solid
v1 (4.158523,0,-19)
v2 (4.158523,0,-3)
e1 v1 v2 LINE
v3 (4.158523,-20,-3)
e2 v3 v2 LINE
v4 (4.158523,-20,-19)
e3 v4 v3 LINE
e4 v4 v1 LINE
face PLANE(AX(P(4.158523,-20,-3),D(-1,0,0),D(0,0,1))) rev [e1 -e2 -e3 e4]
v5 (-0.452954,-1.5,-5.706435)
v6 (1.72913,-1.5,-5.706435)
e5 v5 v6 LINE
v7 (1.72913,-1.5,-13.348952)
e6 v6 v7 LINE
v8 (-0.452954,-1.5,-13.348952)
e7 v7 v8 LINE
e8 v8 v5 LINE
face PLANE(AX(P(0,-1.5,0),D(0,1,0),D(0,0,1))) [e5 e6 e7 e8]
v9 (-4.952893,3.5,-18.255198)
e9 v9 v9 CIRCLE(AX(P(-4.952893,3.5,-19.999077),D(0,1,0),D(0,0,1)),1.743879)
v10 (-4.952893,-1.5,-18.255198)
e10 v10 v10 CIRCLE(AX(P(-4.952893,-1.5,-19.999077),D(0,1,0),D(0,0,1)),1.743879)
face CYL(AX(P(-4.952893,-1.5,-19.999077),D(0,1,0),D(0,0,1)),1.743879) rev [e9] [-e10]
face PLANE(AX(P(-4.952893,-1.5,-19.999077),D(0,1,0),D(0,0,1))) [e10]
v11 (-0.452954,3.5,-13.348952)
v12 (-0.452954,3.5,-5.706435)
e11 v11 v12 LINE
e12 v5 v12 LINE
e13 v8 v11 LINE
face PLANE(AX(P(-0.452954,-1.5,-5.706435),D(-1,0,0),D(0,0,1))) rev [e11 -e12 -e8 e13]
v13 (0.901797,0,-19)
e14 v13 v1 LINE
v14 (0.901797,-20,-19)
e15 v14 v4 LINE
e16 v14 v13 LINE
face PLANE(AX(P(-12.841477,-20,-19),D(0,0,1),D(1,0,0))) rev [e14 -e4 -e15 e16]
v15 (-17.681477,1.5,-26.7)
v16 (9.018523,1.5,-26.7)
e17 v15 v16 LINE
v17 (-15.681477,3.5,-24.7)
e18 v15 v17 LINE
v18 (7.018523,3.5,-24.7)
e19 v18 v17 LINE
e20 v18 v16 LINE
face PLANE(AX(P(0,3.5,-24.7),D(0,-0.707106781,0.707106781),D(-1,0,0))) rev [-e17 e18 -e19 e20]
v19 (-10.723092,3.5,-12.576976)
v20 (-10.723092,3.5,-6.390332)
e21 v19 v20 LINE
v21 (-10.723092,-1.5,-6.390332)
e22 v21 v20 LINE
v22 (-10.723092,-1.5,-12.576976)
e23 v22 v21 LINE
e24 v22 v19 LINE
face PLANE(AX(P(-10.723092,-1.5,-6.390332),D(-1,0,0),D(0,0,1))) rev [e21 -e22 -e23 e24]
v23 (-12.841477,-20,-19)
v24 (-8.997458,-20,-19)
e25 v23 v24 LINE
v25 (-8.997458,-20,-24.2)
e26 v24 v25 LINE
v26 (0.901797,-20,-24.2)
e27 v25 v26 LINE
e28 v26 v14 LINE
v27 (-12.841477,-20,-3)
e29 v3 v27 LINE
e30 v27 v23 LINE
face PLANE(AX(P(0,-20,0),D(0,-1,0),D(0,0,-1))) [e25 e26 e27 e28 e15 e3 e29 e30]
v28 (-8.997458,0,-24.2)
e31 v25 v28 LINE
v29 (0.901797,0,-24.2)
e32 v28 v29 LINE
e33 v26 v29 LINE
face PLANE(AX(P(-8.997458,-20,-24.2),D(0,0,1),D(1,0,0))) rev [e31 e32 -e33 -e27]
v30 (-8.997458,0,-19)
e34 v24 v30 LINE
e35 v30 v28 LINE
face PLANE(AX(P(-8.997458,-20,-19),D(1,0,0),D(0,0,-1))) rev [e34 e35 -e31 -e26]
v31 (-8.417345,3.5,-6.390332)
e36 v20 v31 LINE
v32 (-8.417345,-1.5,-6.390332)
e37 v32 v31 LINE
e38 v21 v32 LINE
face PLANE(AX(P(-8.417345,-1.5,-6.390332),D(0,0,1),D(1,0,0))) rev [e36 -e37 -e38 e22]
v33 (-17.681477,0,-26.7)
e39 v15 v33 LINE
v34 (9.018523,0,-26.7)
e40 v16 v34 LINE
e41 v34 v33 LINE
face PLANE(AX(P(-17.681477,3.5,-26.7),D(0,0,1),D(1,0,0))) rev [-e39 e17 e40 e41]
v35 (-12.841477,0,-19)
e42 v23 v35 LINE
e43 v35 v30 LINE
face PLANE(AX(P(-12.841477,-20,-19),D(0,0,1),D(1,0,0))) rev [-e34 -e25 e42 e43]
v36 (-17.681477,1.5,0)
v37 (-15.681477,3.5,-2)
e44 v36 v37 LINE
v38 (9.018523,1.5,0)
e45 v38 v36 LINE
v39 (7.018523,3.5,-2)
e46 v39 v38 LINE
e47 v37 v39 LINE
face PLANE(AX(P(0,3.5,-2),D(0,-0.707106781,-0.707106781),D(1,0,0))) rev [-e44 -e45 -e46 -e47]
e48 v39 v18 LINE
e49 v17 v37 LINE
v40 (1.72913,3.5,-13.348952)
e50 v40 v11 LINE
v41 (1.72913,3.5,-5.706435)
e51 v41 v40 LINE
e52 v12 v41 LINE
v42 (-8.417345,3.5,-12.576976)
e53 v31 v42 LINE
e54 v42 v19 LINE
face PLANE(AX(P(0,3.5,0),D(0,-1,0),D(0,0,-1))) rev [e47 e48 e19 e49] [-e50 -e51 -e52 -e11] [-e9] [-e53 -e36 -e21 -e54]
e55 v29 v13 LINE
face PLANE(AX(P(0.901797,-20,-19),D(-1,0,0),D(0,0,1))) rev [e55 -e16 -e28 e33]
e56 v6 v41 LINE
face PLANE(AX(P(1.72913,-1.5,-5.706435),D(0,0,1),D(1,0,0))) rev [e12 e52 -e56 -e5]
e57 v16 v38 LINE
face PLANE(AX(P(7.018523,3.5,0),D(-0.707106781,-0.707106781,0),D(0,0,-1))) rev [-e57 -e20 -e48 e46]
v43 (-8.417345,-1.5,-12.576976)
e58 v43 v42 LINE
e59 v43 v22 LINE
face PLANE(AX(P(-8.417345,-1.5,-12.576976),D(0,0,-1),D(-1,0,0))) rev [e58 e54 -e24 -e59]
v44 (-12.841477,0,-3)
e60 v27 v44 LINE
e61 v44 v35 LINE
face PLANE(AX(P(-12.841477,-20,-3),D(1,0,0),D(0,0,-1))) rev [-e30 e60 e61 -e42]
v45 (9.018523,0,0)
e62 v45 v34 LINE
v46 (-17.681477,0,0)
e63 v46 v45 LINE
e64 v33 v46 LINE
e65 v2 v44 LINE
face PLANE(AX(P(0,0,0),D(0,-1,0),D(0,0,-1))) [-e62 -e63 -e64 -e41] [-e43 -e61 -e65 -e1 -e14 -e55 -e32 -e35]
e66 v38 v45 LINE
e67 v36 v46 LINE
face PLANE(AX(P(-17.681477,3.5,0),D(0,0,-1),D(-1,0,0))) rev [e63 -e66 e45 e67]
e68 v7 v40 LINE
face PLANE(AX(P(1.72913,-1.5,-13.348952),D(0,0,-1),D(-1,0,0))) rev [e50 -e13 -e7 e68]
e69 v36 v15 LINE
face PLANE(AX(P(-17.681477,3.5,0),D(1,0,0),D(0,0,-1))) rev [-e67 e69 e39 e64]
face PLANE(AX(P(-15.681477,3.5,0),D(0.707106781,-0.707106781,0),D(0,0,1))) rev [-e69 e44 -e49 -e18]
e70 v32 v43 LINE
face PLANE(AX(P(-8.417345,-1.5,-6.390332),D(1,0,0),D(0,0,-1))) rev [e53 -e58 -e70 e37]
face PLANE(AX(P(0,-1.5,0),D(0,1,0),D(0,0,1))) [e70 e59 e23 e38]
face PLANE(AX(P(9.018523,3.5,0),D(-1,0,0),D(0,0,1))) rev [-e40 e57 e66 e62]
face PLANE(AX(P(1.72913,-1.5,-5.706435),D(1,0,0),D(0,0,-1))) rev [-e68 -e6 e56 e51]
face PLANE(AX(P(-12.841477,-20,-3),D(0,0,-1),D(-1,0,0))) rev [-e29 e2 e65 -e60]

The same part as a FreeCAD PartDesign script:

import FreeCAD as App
import Part
import Sketcher
from FreeCAD import Vector


def edges_at(feature, points):
    """Names of the edges that pass closest to the given points."""
    edges = feature.Shape.Edges
    near = lambda p: min(range(len(edges)), key=lambda i: edges[i].distToShape(Part.Vertex(*p))[0])
    return sorted({f"Edge{near(p) + 1}" for p in points})


def add_polygon(sketch, points):
    """Adds a closed chain of lines whose ends are joined by coincident constraints."""
    first, n = sketch.GeometryCount, len(points)
    for a, b in zip(points, points[1:] + points[:1]):
        sketch.addGeometry(Part.LineSegment(App.Vector(*a, 0), App.Vector(*b, 0)), False)
    for i in range(n):
        sketch.addConstraint(Sketcher.Constraint("Coincident", first + i, 2, first + (i + 1) % n, 1))

doc = App.newDocument("Part")
body = doc.addObject("PartDesign::Body", "Body")

# Sketch on XZ plane
sketch1 = body.newObject("Sketcher::SketchObject", "Sketch")
sketch1.AttachmentSupport = (doc.getObject("XZ_Plane"), [""])
sketch1.MapMode = "FlatFace"
add_polygon(sketch1, [(-18, -27), (-18, 0), (9, 0), (9, -27)])  # lines 0-3
sketch1.addConstraint([
    Sketcher.Constraint("Vertical", 0),
    Sketcher.Constraint("Horizontal", 1),
    Sketcher.Constraint("Vertical", 2),
    Sketcher.Constraint("Horizontal", 3),
    Sketcher.Constraint("PointOnObject", 0, 2, -1),
    Sketcher.Constraint("Equal", 3, 0),
    Sketcher.Constraint("DistanceX", 1, 1, 1, 2, 26.7),
    Sketcher.Constraint("DistanceX", 0, 2, -1, 1, 17.681477),
])
pad1 = body.newObject("PartDesign::Pad", "Pad")
pad1.Profile = sketch1
pad1.Length = 3.5
pad1.Reversed = True
doc.recompute()

chamfer = body.newObject("PartDesign::Chamfer", "Chamfer")
chamfer.Base = (pad1, edges_at(pad1, [
    (9.019, 3.5, -13.35),
    (-4.331, 3.5, -26.7),
    (-17.681, 3.5, -13.35),
    (-4.331, 3.5, 0),
]))
chamfer.Size = 2

# Sketch on XZ plane
sketch2 = body.newObject("Sketcher::SketchObject", "Sketch001")
sketch2.AttachmentSupport = (doc.getObject("XZ_Plane"), [""])
sketch2.MapMode = "FlatFace"
add_polygon(sketch2, [(-13, -3), (-13, -19), (4, -19), (4, -3)])  # lines 0-3
sketch2.addConstraint([
    Sketcher.Constraint("Vertical", 0),
    Sketcher.Constraint("Horizontal", 1),
    Sketcher.Constraint("Vertical", 2),
    Sketcher.Constraint("Horizontal", 3),
    Sketcher.Constraint("DistanceX", 1, 1, 1, 2, 17.0),
    Sketcher.Constraint("DistanceY", 0, 2, 0, 1, 16.0),
    Sketcher.Constraint("DistanceY", 0, 2, -1, 1, 19.0),
    Sketcher.Constraint("DistanceX", 0, 2, -1, 1, 12.841477),
])
pad2 = body.newObject("PartDesign::Pad", "Pad001")
pad2.Profile = sketch2
pad2.Length = 20

# Sketch on XZ plane
sketch3 = body.newObject("Sketcher::SketchObject", "Sketch002")
sketch3.AttachmentSupport = (doc.getObject("XZ_Plane"), [""])
sketch3.MapMode = "FlatFace"
add_polygon(sketch3, [(-9, -19), (-9, -24), (1, -24), (1, -19)])  # lines 0-3
sketch3.addConstraint([
    Sketcher.Constraint("Vertical", 0),
    Sketcher.Constraint("Horizontal", 1),
    Sketcher.Constraint("Vertical", 2),
    Sketcher.Constraint("Horizontal", 3),
    Sketcher.Constraint("DistanceY", 0, 2, 0, 1, 5.2),
    Sketcher.Constraint("DistanceY", 2, 2, -1, 1, 19.0),
    Sketcher.Constraint("DistanceX", 1, 1, 1, 2, 9.899255),
    Sketcher.Constraint("DistanceX", 0, 2, -1, 1, 8.997458),
])
pad3 = body.newObject("PartDesign::Pad", "Pad002")
pad3.Profile = sketch3
pad3.Length = 20

# Sketch on XZ plane
sketch4 = body.newObject("Sketcher::SketchObject", "Sketch003")
sketch4.AttachmentSupport = (doc.getObject("XZ_Plane"), [""])
sketch4.MapMode = "FlatFace"
sketch4.AttachmentOffset = App.Placement(Vector(0, 0, -3.5), App.Rotation())
sketch4.addGeometry(Part.Circle(Vector(-5, -20, 0), Vector(0, 0, 1), 1.7), False)  # 0
add_polygon(sketch4, [(-0.5, -13.3), (-0.5, -5.7), (1.7, -5.7), (1.7, -13.3)])  # lines 1-4
add_polygon(sketch4, [(-10.7, -12.6), (-10.7, -6.4), (-8.4, -6.4), (-8.4, -12.6)])  # lines 5-8
sketch4.addConstraint([
    Sketcher.Constraint("Vertical", 1),
    Sketcher.Constraint("Horizontal", 2),
    Sketcher.Constraint("Vertical", 3),
    Sketcher.Constraint("Horizontal", 4),
    Sketcher.Constraint("Vertical", 5),
    Sketcher.Constraint("Horizontal", 6),
    Sketcher.Constraint("Vertical", 7),
    Sketcher.Constraint("Horizontal", 8),
    Sketcher.Constraint("Diameter", 0, 3.487757),
    Sketcher.Constraint("DistanceX", 5, 2, 0, 3, 5.770199),
    Sketcher.Constraint("DistanceY", 0, 3, 7, 2, 7.422101),
    Sketcher.Constraint("DistanceX", 2, 1, 2, 2, 2.182084),
    Sketcher.Constraint("DistanceX", 6, 1, 6, 2, 2.305748),
    Sketcher.Constraint("DistanceY", 1, 1, 1, 2, 7.642517),
    Sketcher.Constraint("DistanceY", 5, 1, 5, 2, 6.186644),
    Sketcher.Constraint("DistanceX", -1, 1, 2, 2, 1.72913),
    Sketcher.Constraint("DistanceY", 3, 2, -1, 1, 13.348952),
    Sketcher.Constraint("DistanceX", 0, 3, 1, 2, 4.499939),
    Sketcher.Constraint("DistanceY", 0, 3, 1, 2, 14.292642),
])
pocket1 = body.newObject("PartDesign::Pocket", "Pocket")
pocket1.Profile = sketch4
pocket1.Length = 5
pocket1.Reversed = True

doc.recompute()
